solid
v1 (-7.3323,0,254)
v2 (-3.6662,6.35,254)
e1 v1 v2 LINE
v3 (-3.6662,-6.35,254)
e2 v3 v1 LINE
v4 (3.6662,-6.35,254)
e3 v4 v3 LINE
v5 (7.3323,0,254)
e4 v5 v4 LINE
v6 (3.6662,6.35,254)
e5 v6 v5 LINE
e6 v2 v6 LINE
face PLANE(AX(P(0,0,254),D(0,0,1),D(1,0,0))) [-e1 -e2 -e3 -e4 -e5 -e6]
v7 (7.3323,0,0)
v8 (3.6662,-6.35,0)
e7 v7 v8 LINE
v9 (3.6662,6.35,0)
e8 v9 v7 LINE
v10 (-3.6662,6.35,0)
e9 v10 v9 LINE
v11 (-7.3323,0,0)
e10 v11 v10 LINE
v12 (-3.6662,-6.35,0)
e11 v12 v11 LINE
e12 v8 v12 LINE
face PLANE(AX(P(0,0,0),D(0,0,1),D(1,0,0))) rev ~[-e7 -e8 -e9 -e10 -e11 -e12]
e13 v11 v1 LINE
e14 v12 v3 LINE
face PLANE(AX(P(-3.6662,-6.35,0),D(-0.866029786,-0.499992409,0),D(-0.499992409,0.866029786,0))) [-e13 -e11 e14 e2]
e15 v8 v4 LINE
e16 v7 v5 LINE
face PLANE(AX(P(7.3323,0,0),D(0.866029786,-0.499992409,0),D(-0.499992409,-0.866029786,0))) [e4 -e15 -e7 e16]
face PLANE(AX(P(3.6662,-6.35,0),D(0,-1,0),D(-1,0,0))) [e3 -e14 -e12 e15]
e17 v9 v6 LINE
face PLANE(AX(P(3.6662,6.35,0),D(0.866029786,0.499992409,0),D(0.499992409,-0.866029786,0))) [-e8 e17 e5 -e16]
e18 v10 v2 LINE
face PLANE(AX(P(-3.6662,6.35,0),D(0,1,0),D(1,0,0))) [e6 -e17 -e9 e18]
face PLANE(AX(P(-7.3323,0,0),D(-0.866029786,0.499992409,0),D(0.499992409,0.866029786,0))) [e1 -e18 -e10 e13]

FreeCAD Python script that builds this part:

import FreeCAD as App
import Part
import Sketcher

V = App.Vector
Q = App.Units.Quantity


def add_polygon(sketch, points):
    """Adds a closed chain of lines whose ends are joined by coincident constraints."""
    first, n = sketch.GeometryCount, len(points)
    for a, b in zip(points, points[1:] + points[:1]):
        sketch.addGeometry(Part.LineSegment(App.Vector(*a, 0), App.Vector(*b, 0)), False)
    for i in range(n):
        sketch.addConstraint(Sketcher.Constraint("Coincident", first + i, 2, first + (i + 1) % n, 1))

doc = App.newDocument("Part")
body = doc.addObject("PartDesign::Body", "Body")

# Sketch on XY plane
sketch1 = body.newObject("Sketcher::SketchObject", "Sketch")
sketch1.AttachmentSupport = (doc.getObject("XY_Plane"), [""])
sketch1.MapMode = "FlatFace"
add_polygon(sketch1, [(7, 0), (4, 6), (-4, 6), (-7, 0), (-4, -6), (4, -6)])  # lines 0-5
sketch1.addConstraint([
    Sketcher.Constraint("Horizontal", 1),
    Sketcher.Constraint("Horizontal", 4),
    Sketcher.Constraint("Symmetric", 0, 2, 3, 2, -1, 1),
    Sketcher.Constraint("Symmetric", 2, 2, 5, 2, -1, 1),
    Sketcher.Constraint("PointOnObject", 2, 2, -1),
    Sketcher.Constraint("Parallel", 2, 5),
    Sketcher.Constraint("Vertical", 1, 2, 3, 2),
    Sketcher.Constraint("DistanceY", 3, 2, 1, 2, Q("0.5 in")),
    Sketcher.Constraint("Angle", 0, Q("119.9995 deg")),
    Sketcher.Constraint("DistanceX", 2, 2, 0, 2, Q("0.433 in")),
])
pad1 = body.newObject("PartDesign::Pad", "Pad")
pad1.Profile = sketch1
pad1.Length = Q("10 in")

doc.recompute()
